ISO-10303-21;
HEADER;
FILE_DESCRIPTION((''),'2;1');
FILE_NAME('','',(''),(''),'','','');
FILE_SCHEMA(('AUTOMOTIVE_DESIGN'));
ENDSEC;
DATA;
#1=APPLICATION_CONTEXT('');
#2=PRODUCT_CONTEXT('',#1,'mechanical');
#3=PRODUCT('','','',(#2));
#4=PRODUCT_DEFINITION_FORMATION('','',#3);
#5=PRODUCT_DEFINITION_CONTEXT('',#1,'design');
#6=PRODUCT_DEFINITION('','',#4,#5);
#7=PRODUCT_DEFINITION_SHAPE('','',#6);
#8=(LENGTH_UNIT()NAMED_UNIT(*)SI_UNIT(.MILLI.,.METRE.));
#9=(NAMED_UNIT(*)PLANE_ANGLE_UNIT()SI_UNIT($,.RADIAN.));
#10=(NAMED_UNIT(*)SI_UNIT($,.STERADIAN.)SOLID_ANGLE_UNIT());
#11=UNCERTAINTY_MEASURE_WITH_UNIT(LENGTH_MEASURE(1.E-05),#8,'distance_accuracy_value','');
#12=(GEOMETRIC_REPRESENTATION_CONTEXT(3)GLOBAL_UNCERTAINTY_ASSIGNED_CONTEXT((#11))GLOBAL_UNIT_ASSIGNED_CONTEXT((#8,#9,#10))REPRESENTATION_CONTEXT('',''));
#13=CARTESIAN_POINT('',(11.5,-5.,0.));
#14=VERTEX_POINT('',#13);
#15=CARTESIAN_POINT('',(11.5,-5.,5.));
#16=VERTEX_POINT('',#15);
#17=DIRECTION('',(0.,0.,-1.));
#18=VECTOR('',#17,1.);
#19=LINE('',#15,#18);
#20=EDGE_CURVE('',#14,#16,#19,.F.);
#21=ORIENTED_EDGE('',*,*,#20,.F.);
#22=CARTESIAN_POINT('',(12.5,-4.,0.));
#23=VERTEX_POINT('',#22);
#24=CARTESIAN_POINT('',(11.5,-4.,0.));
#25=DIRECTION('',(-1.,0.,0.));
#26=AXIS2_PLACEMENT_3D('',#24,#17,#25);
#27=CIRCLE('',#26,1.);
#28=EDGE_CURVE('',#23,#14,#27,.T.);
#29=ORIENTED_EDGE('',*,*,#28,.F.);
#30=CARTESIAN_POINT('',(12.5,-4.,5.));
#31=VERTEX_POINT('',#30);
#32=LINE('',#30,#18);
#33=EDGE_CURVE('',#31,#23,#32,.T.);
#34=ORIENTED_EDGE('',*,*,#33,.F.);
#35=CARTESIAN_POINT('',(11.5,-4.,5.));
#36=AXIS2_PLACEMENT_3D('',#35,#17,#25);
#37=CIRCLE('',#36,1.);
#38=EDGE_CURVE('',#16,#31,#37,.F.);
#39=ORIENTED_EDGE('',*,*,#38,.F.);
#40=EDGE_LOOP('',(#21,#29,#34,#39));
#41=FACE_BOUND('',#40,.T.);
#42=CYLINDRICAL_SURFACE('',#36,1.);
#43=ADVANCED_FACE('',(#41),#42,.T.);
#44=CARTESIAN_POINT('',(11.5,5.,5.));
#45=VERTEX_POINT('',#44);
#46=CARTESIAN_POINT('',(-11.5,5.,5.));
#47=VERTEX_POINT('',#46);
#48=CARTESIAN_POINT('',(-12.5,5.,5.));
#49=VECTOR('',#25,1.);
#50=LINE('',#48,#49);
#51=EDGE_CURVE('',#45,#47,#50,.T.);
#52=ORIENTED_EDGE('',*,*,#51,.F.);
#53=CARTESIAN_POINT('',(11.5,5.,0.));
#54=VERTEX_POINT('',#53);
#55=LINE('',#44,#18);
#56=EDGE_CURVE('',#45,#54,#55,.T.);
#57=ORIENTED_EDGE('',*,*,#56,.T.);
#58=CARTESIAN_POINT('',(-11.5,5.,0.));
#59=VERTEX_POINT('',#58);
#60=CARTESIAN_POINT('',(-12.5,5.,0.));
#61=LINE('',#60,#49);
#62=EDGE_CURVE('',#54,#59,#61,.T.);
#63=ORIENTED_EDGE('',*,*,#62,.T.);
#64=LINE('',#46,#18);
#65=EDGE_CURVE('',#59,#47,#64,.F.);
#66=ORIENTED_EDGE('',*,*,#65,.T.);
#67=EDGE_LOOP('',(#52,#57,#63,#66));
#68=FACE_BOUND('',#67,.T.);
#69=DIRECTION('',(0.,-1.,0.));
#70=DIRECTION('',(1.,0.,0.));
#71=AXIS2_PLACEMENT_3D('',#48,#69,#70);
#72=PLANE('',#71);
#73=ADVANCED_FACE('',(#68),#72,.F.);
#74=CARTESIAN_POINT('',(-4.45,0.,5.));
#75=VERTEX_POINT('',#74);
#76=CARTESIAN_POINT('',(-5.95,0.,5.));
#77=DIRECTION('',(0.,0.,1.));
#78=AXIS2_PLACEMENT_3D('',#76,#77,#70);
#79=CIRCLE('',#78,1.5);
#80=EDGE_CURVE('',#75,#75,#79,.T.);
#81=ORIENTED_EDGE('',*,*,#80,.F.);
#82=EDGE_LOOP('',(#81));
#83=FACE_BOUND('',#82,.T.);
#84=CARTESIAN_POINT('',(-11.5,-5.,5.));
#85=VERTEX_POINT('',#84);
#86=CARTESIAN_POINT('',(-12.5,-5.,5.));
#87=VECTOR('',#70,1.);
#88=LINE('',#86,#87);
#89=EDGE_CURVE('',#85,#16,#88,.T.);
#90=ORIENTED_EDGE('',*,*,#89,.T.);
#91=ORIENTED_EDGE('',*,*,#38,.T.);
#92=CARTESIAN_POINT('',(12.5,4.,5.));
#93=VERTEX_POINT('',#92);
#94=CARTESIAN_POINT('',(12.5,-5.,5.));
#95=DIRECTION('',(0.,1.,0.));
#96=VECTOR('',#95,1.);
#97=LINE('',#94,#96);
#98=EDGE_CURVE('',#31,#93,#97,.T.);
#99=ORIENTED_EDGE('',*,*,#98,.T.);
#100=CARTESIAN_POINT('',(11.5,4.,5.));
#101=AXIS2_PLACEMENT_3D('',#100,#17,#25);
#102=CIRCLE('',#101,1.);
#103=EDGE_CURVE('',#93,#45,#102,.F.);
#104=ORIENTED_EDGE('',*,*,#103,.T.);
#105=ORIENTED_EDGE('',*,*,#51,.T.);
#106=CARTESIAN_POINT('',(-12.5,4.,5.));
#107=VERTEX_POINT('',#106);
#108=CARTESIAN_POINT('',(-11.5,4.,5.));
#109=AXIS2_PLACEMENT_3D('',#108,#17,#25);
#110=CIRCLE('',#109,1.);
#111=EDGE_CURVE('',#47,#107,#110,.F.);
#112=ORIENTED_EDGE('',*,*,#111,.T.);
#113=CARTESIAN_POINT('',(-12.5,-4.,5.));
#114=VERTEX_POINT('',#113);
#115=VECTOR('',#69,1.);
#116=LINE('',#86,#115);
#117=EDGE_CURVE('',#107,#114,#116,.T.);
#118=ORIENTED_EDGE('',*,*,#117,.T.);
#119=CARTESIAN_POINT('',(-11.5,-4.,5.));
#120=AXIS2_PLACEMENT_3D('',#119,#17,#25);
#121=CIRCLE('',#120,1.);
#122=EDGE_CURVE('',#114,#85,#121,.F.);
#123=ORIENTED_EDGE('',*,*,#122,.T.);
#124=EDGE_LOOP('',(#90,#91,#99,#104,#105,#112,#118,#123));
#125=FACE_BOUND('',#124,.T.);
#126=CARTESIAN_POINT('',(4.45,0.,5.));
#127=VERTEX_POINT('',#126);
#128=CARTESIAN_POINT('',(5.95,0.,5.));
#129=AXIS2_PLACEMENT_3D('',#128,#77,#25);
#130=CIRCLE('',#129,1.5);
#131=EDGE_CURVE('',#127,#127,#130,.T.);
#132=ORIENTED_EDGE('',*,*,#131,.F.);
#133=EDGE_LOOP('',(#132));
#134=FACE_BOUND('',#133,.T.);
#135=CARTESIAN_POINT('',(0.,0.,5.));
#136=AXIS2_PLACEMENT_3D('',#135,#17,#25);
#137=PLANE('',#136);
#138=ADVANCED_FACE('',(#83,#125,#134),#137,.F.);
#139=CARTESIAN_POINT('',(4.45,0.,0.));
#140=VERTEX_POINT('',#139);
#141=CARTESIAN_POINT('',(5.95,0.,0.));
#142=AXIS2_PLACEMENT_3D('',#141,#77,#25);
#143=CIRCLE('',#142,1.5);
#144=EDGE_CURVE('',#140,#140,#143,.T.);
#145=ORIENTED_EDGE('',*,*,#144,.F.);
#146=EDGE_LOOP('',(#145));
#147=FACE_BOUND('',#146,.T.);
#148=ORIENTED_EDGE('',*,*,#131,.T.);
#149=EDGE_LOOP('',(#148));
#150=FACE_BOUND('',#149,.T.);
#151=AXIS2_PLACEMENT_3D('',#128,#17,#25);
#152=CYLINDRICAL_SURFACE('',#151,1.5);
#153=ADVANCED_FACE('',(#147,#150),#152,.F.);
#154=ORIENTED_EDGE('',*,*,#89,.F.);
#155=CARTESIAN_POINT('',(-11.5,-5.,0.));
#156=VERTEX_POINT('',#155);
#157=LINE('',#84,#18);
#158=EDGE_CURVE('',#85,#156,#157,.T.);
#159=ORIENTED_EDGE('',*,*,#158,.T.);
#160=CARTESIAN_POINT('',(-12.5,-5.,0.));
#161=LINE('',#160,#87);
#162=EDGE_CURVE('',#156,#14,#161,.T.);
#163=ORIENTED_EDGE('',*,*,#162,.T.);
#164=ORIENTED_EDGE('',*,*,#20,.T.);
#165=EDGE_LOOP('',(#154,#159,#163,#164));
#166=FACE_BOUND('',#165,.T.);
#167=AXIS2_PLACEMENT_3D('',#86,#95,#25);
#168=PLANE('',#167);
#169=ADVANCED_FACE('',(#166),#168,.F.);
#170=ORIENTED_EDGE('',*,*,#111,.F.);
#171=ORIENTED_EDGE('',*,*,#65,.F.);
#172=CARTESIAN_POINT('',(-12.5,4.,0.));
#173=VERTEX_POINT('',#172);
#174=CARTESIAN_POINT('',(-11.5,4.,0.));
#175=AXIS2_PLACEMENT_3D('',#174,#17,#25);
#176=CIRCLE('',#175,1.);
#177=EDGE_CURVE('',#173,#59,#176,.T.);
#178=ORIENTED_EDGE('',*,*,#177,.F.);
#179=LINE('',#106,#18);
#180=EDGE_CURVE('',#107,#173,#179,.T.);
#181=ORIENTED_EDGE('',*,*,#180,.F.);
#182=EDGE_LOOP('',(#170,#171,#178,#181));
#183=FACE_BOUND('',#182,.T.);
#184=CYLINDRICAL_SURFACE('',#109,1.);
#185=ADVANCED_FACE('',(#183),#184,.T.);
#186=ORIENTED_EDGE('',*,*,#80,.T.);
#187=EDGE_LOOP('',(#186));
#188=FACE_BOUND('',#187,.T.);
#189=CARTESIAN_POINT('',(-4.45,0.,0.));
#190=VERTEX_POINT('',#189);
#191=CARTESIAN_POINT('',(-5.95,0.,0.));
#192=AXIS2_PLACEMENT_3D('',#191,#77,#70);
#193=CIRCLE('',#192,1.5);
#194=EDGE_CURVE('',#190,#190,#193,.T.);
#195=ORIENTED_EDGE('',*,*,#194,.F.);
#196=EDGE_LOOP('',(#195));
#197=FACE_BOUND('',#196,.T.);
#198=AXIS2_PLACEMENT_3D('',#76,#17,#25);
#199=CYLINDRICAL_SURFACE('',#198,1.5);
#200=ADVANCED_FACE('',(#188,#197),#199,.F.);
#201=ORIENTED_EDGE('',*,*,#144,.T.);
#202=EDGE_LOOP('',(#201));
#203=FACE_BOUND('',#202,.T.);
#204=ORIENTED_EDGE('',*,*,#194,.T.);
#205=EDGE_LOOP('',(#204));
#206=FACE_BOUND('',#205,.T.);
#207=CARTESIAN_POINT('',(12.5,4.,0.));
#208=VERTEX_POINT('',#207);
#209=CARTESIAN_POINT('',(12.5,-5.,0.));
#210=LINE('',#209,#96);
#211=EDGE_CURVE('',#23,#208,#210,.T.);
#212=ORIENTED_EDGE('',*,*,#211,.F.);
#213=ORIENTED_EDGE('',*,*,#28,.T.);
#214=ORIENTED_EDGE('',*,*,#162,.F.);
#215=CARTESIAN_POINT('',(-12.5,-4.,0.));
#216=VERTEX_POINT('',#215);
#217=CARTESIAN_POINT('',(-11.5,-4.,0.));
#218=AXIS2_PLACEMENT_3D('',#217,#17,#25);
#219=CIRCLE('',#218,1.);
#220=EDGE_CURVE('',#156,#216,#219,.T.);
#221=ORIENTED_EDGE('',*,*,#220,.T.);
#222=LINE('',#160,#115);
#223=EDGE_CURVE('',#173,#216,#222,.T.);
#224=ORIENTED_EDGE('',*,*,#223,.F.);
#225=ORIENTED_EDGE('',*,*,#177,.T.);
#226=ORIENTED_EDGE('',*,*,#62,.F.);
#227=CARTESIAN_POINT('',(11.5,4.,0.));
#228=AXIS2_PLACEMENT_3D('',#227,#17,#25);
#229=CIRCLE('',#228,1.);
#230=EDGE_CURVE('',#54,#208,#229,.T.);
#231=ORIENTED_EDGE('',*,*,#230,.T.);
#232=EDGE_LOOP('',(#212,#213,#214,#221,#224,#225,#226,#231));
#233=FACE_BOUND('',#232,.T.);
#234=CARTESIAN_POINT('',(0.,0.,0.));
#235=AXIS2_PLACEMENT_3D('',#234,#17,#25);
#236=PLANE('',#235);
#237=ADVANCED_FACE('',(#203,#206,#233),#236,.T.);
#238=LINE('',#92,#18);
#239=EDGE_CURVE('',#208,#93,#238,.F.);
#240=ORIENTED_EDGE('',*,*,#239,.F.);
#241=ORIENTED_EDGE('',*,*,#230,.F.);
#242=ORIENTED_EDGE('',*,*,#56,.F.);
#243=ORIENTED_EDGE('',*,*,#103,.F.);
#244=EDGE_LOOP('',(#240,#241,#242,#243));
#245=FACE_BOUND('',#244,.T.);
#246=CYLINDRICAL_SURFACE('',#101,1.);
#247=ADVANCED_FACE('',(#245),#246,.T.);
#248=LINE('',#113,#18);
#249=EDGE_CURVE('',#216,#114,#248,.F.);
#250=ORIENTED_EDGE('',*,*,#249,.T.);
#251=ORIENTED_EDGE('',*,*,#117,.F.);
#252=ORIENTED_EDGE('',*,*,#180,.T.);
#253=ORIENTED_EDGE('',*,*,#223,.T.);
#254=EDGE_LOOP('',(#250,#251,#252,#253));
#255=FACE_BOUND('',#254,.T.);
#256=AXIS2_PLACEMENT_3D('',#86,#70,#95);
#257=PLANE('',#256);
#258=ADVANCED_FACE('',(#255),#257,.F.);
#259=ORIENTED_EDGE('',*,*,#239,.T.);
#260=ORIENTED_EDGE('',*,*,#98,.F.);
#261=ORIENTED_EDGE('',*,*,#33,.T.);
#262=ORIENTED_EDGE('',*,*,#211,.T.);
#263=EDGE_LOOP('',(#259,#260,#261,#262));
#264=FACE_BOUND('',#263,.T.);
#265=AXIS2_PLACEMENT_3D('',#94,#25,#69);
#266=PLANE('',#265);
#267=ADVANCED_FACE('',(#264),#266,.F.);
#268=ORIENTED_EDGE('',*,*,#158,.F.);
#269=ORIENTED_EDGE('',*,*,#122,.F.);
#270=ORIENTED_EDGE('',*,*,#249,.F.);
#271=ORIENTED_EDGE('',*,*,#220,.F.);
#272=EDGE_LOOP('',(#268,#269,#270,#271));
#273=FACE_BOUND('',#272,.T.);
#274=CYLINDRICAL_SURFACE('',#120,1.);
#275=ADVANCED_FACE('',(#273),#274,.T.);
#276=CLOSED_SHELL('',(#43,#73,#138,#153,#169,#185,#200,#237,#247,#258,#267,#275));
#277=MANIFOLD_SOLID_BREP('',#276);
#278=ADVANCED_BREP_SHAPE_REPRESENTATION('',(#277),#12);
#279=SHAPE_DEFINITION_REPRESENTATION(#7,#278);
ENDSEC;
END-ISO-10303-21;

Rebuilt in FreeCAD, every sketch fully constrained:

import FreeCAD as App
import Part
import Sketcher
from FreeCAD import Vector
Q = App.Units.Quantity


def edges_at(feature, points):
    """Names of the edges that pass closest to the given points."""
    edges = feature.Shape.Edges
    near = lambda p: min(range(len(edges)), key=lambda i: edges[i].distToShape(Part.Vertex(*p))[0])
    return sorted({f"Edge{near(p) + 1}" for p in points})


def add_polygon(sketch, points):
    """Adds a closed chain of lines whose ends are joined by coincident constraints."""
    first, n = sketch.GeometryCount, len(points)
    for a, b in zip(points, points[1:] + points[:1]):
        sketch.addGeometry(Part.LineSegment(App.Vector(*a, 0), App.Vector(*b, 0)), False)
    for i in range(n):
        sketch.addConstraint(Sketcher.Constraint("Coincident", first + i, 2, first + (i + 1) % n, 1))

doc = App.newDocument("Part")
params = doc.addObject("Spreadsheet::Sheet", "Params")
for row, (alias, value) in enumerate([
    ("sketch1_diameter", "3 mm"),
    ("sketch1_width", "25 mm"),
    ("sketch1_height", "10 mm"),
    ("pad1_length", "5 mm"),
    ("fillet_radius", "1 mm"),
], start=1):
    params.set(f"A{row}", alias)
    params.set(f"B{row}", "=" + value)
    params.setAlias(f"B{row}", alias)

body = doc.addObject("PartDesign::Body", "Body")

# Sketch on XY plane
sketch1 = doc.addObject("Sketcher::SketchObject", "Sketch")
body.addObject(sketch1)
sketch1.AttachmentSupport = (doc.XY_Plane, [""])
sketch1.MapMode = "FlatFace"
add_polygon(sketch1, [(-12.5, 5), (-12.5, -5), (12.5, -5), (12.5, 5)])  # lines 0-3
sketch1.addGeometry(Part.Circle(Vector(-5.95, 0, 0), Vector(0, 0, 1), 1.5), False)  # 4
sketch1.addGeometry(Part.Circle(Vector(5.95, 0, 0), Vector(0, 0, 1), 1.5), False)  # 5
sketch1.addConstraint(Sketcher.Constraint("Vertical", 0))
sketch1.addConstraint(Sketcher.Constraint("Horizontal", 1))
sketch1.addConstraint(Sketcher.Constraint("Vertical", 2))
sketch1.addConstraint(Sketcher.Constraint("Horizontal", 3))
sketch1.addConstraint(Sketcher.Constraint("Equal", 4, 5))
sketch1.addConstraint(Sketcher.Constraint("Symmetric", 4, 3, 5, 3, -1, 1))
sketch1.addConstraint(Sketcher.Constraint("Symmetric", 0, 2, 2, 2, -1, 1))
sketch1.addConstraint(Sketcher.Constraint("PointOnObject", 4, 3, -1))
sketch1.addConstraint(Sketcher.Constraint("Diameter", 4, Q("3 mm")))
sketch1.addConstraint(Sketcher.Constraint("DistanceX", 1, 1, 1, 2, Q("25 mm")))
sketch1.addConstraint(Sketcher.Constraint("DistanceY", 0, 2, 0, 1, Q("10 mm")))
sketch1.addConstraint(Sketcher.Constraint("DistanceX", 4, 3, 5, 3, Q("11.9 mm")))
sketch1.setExpression("Constraints[12]", "Params.sketch1_diameter")
sketch1.setExpression("Constraints[13]", "Params.sketch1_width")
sketch1.setExpression("Constraints[14]", "Params.sketch1_height")
pad1 = doc.addObject("PartDesign::Pad", "Pad")
body.addObject(pad1)
pad1.Profile = sketch1
pad1.setExpression("Length", "Params.pad1_length")
doc.recompute()

fillet = doc.addObject("PartDesign::Fillet", "Fillet")
body.addObject(fillet)
fillet.Base = (pad1, edges_at(pad1, [
    (12.5, -5, 2.5),
    (-12.5, -5, 2.5),
    (-12.5, 5, 2.5),
    (12.5, 5, 2.5),
]))
fillet.setExpression("Radius", "Params.fillet_radius")

doc.recompute()
